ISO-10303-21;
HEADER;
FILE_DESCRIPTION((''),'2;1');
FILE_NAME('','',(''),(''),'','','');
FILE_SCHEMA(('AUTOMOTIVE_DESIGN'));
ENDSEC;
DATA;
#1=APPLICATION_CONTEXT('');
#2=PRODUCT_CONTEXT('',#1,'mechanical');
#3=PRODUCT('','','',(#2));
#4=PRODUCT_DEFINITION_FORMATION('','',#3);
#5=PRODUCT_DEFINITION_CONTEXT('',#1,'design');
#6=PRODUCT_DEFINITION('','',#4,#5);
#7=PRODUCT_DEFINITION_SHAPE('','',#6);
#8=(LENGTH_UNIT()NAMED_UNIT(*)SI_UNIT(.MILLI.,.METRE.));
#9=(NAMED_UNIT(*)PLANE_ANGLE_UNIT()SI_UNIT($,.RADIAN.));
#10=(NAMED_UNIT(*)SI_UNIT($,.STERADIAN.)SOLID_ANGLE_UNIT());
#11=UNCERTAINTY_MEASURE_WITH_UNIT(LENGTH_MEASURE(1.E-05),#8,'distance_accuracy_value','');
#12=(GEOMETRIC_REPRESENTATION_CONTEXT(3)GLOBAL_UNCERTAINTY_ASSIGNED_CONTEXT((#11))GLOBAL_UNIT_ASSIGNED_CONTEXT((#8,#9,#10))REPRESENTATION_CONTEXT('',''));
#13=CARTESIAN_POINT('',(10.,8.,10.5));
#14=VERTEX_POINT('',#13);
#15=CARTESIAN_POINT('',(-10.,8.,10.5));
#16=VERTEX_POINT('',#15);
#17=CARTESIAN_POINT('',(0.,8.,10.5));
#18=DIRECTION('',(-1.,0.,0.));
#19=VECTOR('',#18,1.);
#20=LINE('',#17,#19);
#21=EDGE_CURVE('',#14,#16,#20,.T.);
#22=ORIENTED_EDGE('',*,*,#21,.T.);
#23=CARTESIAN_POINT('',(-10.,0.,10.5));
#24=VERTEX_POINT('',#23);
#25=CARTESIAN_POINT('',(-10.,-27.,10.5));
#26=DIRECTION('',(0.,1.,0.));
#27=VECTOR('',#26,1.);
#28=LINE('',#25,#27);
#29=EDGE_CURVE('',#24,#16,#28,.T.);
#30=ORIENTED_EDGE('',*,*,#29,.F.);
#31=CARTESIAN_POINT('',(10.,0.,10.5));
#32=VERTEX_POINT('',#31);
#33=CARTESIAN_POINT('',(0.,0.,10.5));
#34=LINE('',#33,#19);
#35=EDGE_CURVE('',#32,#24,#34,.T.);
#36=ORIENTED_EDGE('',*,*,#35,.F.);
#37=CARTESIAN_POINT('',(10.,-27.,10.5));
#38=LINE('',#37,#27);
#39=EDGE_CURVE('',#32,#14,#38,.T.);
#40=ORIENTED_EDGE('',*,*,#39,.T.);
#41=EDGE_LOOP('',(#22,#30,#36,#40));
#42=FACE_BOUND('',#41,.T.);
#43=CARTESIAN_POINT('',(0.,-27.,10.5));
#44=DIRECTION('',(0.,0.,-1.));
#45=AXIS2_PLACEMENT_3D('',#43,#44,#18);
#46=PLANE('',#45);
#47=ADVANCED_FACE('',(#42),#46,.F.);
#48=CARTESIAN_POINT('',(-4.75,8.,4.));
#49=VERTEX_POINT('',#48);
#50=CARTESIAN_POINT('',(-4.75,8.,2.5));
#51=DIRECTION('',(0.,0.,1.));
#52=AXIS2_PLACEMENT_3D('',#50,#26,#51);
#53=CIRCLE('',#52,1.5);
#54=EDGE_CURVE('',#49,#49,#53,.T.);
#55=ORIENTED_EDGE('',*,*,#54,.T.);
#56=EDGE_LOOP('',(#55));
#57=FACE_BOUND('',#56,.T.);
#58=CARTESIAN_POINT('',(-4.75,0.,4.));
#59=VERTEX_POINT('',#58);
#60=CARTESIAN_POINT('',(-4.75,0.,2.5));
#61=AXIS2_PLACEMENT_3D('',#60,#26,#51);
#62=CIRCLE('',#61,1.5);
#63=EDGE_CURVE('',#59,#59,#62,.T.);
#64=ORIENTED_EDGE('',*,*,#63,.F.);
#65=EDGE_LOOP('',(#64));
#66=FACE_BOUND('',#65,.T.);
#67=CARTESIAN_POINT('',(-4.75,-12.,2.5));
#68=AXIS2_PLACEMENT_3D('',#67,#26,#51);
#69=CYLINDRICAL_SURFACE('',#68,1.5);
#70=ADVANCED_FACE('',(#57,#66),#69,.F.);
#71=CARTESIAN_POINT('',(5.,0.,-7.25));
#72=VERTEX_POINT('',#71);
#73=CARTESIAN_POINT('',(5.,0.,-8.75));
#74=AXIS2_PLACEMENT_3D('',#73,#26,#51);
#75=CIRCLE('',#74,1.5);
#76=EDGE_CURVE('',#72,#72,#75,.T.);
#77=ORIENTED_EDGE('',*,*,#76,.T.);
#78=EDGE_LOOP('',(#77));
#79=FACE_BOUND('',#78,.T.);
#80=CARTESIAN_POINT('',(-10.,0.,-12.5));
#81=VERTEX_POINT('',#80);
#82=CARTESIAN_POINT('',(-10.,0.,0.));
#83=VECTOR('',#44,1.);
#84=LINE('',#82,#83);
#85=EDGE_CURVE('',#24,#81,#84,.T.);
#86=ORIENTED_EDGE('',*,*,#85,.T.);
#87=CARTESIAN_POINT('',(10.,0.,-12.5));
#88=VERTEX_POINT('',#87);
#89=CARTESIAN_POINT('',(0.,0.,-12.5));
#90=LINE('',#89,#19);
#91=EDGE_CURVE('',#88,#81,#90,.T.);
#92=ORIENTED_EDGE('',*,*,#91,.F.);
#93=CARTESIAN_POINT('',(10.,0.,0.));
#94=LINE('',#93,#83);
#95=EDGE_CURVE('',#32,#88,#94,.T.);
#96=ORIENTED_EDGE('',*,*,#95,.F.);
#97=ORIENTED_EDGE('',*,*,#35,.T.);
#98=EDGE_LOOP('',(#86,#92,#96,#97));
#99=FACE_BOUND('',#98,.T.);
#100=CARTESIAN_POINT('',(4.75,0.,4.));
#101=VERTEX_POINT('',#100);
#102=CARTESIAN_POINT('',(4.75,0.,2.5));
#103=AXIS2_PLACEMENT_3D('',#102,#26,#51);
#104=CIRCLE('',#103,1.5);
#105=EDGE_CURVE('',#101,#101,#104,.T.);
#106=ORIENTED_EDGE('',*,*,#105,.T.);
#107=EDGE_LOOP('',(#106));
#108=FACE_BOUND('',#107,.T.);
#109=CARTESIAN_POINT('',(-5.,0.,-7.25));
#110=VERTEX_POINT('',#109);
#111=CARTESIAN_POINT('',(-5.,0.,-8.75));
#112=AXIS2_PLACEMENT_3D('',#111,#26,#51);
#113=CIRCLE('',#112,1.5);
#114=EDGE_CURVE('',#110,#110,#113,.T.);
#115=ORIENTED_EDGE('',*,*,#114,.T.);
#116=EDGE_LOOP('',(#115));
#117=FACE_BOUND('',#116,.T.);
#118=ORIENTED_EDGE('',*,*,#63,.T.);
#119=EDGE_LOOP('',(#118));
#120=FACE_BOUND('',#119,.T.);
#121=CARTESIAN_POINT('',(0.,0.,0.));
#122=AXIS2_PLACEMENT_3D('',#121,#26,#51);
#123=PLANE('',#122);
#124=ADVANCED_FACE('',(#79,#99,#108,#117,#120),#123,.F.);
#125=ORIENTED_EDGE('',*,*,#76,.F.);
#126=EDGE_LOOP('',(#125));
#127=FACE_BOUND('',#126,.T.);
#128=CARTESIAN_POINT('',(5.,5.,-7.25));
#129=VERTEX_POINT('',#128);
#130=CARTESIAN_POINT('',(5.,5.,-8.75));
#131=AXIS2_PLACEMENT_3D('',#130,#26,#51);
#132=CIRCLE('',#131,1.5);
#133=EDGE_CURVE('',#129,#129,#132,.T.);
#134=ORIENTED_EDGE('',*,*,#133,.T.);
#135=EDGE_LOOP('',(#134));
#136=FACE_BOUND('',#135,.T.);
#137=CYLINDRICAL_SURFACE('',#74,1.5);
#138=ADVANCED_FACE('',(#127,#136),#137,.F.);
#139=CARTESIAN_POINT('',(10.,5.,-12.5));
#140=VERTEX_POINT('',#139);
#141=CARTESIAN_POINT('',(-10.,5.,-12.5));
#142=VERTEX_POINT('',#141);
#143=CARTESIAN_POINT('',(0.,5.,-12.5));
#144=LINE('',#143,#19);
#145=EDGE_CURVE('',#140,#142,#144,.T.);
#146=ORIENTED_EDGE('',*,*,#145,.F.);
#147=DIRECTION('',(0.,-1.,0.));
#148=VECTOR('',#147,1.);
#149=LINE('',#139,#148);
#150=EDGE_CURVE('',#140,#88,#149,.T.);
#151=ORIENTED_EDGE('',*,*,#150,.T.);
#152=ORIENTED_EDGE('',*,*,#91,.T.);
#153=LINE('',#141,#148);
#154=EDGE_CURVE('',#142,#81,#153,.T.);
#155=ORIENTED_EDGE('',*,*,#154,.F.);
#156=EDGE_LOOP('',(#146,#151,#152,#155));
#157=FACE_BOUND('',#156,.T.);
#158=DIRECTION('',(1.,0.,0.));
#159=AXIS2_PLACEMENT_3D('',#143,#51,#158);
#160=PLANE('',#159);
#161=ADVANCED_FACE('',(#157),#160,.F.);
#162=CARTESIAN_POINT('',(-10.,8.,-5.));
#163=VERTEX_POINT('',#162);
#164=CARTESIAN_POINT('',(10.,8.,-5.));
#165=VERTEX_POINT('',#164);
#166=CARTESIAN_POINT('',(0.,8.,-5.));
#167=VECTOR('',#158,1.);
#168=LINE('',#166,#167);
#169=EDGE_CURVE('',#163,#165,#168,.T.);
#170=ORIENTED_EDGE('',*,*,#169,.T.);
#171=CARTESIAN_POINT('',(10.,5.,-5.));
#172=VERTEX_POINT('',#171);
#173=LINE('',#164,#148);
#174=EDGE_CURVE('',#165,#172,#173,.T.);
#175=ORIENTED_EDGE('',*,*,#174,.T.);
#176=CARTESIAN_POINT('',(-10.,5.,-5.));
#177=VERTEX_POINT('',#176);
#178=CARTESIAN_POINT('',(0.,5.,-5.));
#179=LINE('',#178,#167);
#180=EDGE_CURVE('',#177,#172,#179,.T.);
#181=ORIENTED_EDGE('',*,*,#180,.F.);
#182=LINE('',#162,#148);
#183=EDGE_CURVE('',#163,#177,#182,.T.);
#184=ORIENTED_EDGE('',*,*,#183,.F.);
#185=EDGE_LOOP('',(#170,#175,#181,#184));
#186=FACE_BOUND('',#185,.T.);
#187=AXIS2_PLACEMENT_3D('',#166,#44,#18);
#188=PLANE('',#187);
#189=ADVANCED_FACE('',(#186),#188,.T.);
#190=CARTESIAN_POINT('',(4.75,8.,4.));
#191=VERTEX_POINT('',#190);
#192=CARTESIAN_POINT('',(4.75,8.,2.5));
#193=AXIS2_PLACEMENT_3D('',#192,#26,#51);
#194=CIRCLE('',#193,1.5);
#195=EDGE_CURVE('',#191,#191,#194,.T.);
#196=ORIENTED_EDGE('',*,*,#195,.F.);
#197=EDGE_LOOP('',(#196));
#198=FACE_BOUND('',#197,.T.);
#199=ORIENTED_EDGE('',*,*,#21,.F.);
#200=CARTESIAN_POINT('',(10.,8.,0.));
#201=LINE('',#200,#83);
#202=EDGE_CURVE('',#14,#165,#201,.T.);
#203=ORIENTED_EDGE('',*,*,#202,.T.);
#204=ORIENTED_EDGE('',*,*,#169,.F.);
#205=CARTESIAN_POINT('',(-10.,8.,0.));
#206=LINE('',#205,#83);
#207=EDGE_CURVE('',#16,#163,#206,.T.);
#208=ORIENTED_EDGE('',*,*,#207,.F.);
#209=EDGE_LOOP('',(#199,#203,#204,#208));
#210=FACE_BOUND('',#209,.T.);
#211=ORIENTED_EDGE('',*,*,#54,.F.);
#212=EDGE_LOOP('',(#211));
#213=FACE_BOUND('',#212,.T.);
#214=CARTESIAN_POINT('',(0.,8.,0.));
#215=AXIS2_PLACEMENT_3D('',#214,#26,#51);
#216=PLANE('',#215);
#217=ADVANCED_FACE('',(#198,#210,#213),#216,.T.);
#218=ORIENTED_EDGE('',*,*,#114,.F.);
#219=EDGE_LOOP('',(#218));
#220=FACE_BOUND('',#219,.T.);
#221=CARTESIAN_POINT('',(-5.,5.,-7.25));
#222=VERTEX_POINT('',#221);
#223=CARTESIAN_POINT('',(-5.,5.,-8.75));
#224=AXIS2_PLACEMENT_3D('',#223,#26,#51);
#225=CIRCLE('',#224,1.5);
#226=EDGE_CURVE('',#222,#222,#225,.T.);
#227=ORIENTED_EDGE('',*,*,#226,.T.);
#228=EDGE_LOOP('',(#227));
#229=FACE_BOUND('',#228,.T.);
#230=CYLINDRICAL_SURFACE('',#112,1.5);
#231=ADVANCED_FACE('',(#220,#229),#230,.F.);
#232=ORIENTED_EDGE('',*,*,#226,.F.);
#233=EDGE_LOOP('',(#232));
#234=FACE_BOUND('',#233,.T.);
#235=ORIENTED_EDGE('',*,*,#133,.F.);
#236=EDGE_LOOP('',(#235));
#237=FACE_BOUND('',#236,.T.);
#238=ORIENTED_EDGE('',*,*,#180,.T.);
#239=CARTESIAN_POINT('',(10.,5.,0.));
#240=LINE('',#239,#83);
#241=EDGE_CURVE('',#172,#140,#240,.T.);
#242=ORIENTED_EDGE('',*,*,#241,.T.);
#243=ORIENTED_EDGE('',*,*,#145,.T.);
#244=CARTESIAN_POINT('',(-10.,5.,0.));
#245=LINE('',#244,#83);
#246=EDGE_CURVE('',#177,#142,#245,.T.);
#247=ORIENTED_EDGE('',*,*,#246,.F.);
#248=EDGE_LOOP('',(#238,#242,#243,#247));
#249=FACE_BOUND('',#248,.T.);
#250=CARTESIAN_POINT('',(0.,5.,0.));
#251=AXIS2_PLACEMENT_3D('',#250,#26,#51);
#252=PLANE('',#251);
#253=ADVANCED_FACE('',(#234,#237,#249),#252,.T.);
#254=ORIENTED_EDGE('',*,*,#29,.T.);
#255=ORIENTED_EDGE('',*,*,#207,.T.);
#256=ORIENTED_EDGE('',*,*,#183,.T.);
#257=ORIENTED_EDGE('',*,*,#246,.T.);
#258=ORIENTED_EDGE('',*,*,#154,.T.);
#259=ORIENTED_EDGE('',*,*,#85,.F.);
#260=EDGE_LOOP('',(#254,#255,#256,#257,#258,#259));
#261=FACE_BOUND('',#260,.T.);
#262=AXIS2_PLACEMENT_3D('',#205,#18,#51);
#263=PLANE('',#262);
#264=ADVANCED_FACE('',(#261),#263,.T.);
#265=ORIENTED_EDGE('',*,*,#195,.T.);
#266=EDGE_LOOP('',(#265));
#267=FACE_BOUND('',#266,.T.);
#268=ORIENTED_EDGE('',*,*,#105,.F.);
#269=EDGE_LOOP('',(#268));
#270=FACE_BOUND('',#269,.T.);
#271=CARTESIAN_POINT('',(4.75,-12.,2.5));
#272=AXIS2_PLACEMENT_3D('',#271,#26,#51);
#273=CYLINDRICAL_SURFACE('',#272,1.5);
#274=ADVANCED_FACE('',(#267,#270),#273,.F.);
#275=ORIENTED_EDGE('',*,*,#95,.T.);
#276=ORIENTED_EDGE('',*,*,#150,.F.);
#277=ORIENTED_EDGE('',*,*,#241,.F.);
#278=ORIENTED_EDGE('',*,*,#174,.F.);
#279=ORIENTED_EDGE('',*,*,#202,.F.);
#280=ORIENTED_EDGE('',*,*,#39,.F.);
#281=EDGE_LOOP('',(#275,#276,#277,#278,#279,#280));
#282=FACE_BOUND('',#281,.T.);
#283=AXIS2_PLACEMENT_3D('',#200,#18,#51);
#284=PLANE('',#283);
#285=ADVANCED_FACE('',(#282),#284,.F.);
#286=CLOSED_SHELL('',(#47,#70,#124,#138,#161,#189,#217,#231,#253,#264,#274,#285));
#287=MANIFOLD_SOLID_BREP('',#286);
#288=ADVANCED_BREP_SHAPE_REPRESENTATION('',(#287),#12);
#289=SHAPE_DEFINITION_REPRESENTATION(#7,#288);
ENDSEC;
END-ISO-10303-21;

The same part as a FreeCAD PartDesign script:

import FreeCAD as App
import Part
import Sketcher

V = App.Vector

doc = App.newDocument("Part")
body = doc.addObject("PartDesign::Body", "Body")

sketch1 = body.newObject("Sketcher::SketchObject", "Sketch")
sketch1.AttachmentSupport = (doc.getObject("XZ_Plane"), [""])
sketch1.MapMode = "FlatFace"
sketch1.addGeometry([
    Part.LineSegment(V(-10, -5, 0), V(-10, 12, 0)),
    Part.LineSegment(V(-10, 12, 0), V(10, 12, 0)),
    Part.LineSegment(V(10, 12, 0), V(10, -5, 0)),
    Part.LineSegment(V(10, -5, 0), V(-10, -5, 0)),
], False)
sketch1.addConstraint([
    Sketcher.Constraint("Coincident", 0, 2, 1, 1),
    Sketcher.Constraint("Coincident", 1, 2, 2, 1),
    Sketcher.Constraint("Coincident", 2, 2, 3, 1),
    Sketcher.Constraint("Coincident", 3, 2, 0, 1),
    Sketcher.Constraint("Vertical", 0),
    Sketcher.Constraint("Horizontal", 1),
    Sketcher.Constraint("Vertical", 2),
    Sketcher.Constraint("Horizontal", 3),
    Sketcher.Constraint("DistanceX", 1, 1, 1, 2, 20.0),
    Sketcher.Constraint("DistanceY", 0, 1, 0, 2, 17.5),
    Sketcher.Constraint("DistanceX", 0, 2, -1, 1, 10.0),
    Sketcher.Constraint("DistanceY", 2, 2, -1, 1, 5.0),
])
pad1 = body.newObject("PartDesign::Pad", "Pad")
pad1.Profile = sketch1
pad1.Length = 8
pad1.Reversed = True

sketch2 = body.newObject("Sketcher::SketchObject", "Sketch001")
sketch2.AttachmentSupport = (doc.getObject("XZ_Plane"), [""])
sketch2.MapMode = "FlatFace"
sketch2.addGeometry([
    Part.LineSegment(V(-10, -12, 0), V(-10, -5, 0)),
    Part.LineSegment(V(-10, -5, 0), V(10, -5, 0)),
    Part.LineSegment(V(10, -5, 0), V(10, -12, 0)),
    Part.LineSegment(V(10, -12, 0), V(-10, -12, 0)),
], False)
sketch2.addConstraint([
    Sketcher.Constraint("Coincident", 0, 2, 1, 1),
    Sketcher.Constraint("Coincident", 1, 2, 2, 1),
    Sketcher.Constraint("Coincident", 2, 2, 3, 1),
    Sketcher.Constraint("Coincident", 3, 2, 0, 1),
    Sketcher.Constraint("Vertical", 0),
    Sketcher.Constraint("Horizontal", 1),
    Sketcher.Constraint("Vertical", 2),
    Sketcher.Constraint("Horizontal", 3),
    Sketcher.Constraint("DistanceX", 1, 1, 1, 2, 20.0),
    Sketcher.Constraint("DistanceY", 0, 1, 0, 2, 7.5),
    Sketcher.Constraint("DistanceX", 0, 2, -1, 1, 10.0),
    Sketcher.Constraint("DistanceY", 0, 2, -1, 1, 5.0),
])
pad2 = body.newObject("PartDesign::Pad", "Pad001")
pad2.Profile = sketch2
pad2.Length = 5
pad2.Reversed = True

sketch3 = body.newObject("Sketcher::SketchObject", "Sketch002")
sketch3.AttachmentSupport = (doc.getObject("XZ_Plane"), [""])
sketch3.MapMode = "FlatFace"
sketch3.AttachmentOffset = App.Placement(V(0, 0, -5), App.Rotation())
sketch3.addGeometry([
    Part.Circle(V(-5, -8.8, 0), V(0, 0, 1), 1.5),
    Part.Circle(V(5, -8.8, 0), V(0, 0, 1), 1.5),
], False)
sketch3.addConstraint([
    Sketcher.Constraint("Equal", 0, 1),
    Sketcher.Constraint("Symmetric", 0, 3, 1, 3, -2),
    Sketcher.Constraint("Diameter", 0, 3.0),
    Sketcher.Constraint("DistanceX", 0, 3, -1, 1, 5.0),
    Sketcher.Constraint("DistanceY", 0, 3, -1, 1, 8.75),
])
pocket1 = body.newObject("PartDesign::Pocket", "Pocket")
pocket1.Profile = sketch3
pocket1.Length = 5
pocket1.Reversed = True

sketch4 = body.newObject("Sketcher::SketchObject", "Sketch003")
sketch4.AttachmentSupport = (doc.getObject("XZ_Plane"), [""])
sketch4.MapMode = "FlatFace"
sketch4.AttachmentOffset = App.Placement(V(0, 0, -8), App.Rotation())
sketch4.addGeometry([
    Part.Circle(V(-4.8, 2.5, 0), V(0, 0, 1), 1.5),
    Part.Circle(V(4.8, 2.5, 0), V(0, 0, 1), 1.5),
], False)
sketch4.addConstraint([
    Sketcher.Constraint("Equal", 0, 1),
    Sketcher.Constraint("Symmetric", 0, 3, 1, 3, -2),
    Sketcher.Constraint("Diameter", 0, 3.0),
    Sketcher.Constraint("DistanceY", -1, 1, 0, 3, 2.5),
    Sketcher.Constraint("DistanceX", 0, 3, 1, 3, 9.5),
])
pocket2 = body.newObject("PartDesign::Pocket", "Pocket001")
pocket2.Profile = sketch4
pocket2.Length = 20
pocket2.Reversed = True

sketch5 = body.newObject("Sketcher::SketchObject", "Sketch004")
sketch5.AttachmentSupport = (doc.getObject("XZ_Plane"), [""])
sketch5.MapMode = "FlatFace"
sketch5.AttachmentOffset = App.Placement(V(0, 0, -8), App.Rotation())
sketch5.addGeometry([
    Part.LineSegment(V(-10, 10.5, 0), V(-10, 12.5, 0)),
    Part.LineSegment(V(-10, 12.5, 0), V(10, 12.5, 0)),
    Part.LineSegment(V(10, 12.5, 0), V(10, 10.5, 0)),
    Part.LineSegment(V(10, 10.5, 0), V(-10, 10.5, 0)),
], False)
sketch5.addConstraint([
    Sketcher.Constraint("Coincident", 0, 2, 1, 1),
    Sketcher.Constraint("Coincident", 1, 2, 2, 1),
    Sketcher.Constraint("Coincident", 2, 2, 3, 1),
    Sketcher.Constraint("Coincident", 3, 2, 0, 1),
    Sketcher.Constraint("Vertical", 0),
    Sketcher.Constraint("Horizontal", 1),
    Sketcher.Constraint("Vertical", 2),
    Sketcher.Constraint("Horizontal", 3),
    Sketcher.Constraint("DistanceX", 1, 1, 1, 2, 20.0),
    Sketcher.Constraint("DistanceY", 0, 1, 0, 2, 2.0),
    Sketcher.Constraint("DistanceX", 0, 2, -1, 1, 10.0),
    Sketcher.Constraint("DistanceY", -1, 1, 0, 2, 12.5),
])
pocket3 = body.newObject("PartDesign::Pocket", "Pocket002")
pocket3.Profile = sketch5
pocket3.Length = 35
pocket3.Reversed = True

doc.recompute()
